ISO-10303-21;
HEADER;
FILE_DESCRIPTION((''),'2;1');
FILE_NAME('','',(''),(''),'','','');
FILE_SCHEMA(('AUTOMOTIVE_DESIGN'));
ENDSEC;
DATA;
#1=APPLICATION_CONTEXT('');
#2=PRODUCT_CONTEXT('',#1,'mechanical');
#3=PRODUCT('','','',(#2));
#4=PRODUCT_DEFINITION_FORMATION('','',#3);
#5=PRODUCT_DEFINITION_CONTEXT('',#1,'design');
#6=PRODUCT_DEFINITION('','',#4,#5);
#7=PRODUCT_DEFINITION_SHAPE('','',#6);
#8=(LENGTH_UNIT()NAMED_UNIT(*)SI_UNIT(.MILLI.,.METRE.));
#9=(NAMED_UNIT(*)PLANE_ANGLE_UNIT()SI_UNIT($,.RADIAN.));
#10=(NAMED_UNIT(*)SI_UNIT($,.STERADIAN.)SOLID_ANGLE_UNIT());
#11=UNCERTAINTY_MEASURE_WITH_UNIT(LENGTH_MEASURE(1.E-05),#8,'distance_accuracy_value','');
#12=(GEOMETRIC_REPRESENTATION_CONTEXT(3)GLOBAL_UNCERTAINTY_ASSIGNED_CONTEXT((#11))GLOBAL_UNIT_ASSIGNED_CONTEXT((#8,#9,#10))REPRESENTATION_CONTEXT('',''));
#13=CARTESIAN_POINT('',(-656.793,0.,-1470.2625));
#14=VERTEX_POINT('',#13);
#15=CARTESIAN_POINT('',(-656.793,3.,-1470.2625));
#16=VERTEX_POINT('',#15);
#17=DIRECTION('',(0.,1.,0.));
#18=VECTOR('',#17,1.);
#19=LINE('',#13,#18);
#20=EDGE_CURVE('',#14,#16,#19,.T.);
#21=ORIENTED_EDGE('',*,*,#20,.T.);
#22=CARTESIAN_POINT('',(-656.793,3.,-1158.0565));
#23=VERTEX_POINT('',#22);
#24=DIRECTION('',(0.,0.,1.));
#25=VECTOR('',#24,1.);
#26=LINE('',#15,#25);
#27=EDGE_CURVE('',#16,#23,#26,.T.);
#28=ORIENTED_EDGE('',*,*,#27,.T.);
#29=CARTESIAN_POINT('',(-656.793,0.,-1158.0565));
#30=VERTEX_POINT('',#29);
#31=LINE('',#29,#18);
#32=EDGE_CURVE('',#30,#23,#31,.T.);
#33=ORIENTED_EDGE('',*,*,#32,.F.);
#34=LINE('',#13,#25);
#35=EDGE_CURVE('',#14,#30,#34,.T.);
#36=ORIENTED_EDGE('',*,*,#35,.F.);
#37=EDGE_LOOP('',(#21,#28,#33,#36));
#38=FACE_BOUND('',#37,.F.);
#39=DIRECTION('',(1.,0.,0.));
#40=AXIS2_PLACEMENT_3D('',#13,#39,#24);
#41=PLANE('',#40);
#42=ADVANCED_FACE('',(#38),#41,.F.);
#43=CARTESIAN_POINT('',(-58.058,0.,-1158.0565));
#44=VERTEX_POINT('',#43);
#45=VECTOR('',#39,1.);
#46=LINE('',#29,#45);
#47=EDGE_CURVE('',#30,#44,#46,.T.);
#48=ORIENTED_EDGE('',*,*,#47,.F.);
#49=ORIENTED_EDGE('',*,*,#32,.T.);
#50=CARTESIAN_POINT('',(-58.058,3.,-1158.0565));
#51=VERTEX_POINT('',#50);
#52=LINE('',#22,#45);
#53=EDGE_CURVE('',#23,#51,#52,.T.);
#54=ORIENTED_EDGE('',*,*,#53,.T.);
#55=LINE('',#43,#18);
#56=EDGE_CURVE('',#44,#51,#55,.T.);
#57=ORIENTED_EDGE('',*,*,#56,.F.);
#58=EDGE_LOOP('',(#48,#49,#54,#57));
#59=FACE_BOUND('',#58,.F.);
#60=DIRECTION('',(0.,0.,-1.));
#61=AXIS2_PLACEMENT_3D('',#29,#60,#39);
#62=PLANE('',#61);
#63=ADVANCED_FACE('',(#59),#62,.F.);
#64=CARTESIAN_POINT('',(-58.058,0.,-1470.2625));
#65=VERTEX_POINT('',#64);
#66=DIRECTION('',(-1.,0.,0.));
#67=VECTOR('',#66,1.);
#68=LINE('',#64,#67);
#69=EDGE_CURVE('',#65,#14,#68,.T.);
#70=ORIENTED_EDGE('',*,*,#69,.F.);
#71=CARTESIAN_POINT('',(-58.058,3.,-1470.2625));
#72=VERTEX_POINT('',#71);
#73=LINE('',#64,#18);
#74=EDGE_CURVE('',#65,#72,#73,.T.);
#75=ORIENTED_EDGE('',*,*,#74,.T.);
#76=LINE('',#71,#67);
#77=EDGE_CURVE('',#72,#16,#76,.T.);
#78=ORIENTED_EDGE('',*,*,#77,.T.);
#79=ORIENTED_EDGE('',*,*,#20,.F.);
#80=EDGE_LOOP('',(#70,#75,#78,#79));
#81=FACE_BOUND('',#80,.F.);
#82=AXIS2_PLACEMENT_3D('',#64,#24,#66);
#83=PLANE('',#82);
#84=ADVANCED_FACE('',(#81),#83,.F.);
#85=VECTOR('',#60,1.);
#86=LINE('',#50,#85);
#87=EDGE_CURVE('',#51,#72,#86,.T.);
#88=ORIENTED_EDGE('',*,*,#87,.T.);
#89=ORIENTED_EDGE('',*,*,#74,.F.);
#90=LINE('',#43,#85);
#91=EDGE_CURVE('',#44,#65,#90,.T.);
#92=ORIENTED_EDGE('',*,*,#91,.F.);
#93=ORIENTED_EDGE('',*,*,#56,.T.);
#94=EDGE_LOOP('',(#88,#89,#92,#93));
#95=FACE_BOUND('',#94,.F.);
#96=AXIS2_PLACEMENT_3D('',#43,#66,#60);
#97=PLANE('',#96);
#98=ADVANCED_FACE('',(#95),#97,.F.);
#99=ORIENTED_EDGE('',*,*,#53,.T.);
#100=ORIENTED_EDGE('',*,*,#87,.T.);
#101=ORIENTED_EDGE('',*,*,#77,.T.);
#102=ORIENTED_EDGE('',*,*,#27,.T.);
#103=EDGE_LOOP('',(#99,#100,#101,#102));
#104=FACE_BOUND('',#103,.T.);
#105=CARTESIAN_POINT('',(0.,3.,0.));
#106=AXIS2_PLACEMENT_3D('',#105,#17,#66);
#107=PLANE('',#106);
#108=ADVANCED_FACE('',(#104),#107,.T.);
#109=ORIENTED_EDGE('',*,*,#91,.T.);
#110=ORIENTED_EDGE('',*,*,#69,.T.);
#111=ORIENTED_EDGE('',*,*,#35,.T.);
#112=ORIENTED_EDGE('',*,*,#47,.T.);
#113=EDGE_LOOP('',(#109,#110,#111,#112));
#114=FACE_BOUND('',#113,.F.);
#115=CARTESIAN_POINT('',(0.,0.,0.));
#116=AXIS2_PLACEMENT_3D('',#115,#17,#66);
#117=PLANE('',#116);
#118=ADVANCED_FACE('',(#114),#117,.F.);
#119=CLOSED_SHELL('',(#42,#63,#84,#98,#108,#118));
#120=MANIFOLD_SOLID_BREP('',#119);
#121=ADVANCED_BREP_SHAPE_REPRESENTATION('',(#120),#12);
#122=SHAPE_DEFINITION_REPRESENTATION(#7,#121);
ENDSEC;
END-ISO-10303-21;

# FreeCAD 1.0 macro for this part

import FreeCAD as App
import Part
import Sketcher
from FreeCAD import Vector


def add_polygon(sketch, points):
    """Adds a closed chain of lines whose ends are joined by coincident constraints."""
    first, n = sketch.GeometryCount, len(points)
    for a, b in zip(points, points[1:] + points[:1]):
        sketch.addGeometry(Part.LineSegment(App.Vector(*a, 0), App.Vector(*b, 0)), False)
    for i in range(n):
        sketch.addConstraint(Sketcher.Constraint("Coincident", first + i, 2, first + (i + 1) % n, 1))

doc = App.newDocument("Part")
body = doc.addObject("PartDesign::Body", "Body")

sketch1 = body.newObject("Sketcher::SketchObject", "Sketch")
sketch1.AttachmentSupport = (doc.getObject("XZ_Plane"), [""])
sketch1.MapMode = "FlatFace"
add_polygon(sketch1, [(-656.793, -1470.2625), (-656.793, -1158.0565), (-58.058, -1158.0565), (-58.058, -1470.2625)])
sketch1.addConstraint(Sketcher.Constraint("Vertical", 0))
sketch1.addConstraint(Sketcher.Constraint("Horizontal", 1))
sketch1.addConstraint(Sketcher.Constraint("Vertical", 2))
sketch1.addConstraint(Sketcher.Constraint("Horizontal", 3))
sketch1.addConstraint(Sketcher.Constraint("DistanceX", 1, 1, 1, 2, 598.735))
sketch1.addConstraint(Sketcher.Constraint("DistanceY", 0, 1, 0, 2, 312.206))
sketch1.addConstraint(Sketcher.Constraint("DistanceX", 0, 2, -1, 1, 656.793))
sketch1.addConstraint(Sketcher.Constraint("DistanceY", 0, 2, -1, 1, 1158.0565))
pad1 = body.newObject("PartDesign::Pad", "Pad")
pad1.Profile = sketch1
pad1.Length = 3
pad1.Reversed = True

doc.recompute()
